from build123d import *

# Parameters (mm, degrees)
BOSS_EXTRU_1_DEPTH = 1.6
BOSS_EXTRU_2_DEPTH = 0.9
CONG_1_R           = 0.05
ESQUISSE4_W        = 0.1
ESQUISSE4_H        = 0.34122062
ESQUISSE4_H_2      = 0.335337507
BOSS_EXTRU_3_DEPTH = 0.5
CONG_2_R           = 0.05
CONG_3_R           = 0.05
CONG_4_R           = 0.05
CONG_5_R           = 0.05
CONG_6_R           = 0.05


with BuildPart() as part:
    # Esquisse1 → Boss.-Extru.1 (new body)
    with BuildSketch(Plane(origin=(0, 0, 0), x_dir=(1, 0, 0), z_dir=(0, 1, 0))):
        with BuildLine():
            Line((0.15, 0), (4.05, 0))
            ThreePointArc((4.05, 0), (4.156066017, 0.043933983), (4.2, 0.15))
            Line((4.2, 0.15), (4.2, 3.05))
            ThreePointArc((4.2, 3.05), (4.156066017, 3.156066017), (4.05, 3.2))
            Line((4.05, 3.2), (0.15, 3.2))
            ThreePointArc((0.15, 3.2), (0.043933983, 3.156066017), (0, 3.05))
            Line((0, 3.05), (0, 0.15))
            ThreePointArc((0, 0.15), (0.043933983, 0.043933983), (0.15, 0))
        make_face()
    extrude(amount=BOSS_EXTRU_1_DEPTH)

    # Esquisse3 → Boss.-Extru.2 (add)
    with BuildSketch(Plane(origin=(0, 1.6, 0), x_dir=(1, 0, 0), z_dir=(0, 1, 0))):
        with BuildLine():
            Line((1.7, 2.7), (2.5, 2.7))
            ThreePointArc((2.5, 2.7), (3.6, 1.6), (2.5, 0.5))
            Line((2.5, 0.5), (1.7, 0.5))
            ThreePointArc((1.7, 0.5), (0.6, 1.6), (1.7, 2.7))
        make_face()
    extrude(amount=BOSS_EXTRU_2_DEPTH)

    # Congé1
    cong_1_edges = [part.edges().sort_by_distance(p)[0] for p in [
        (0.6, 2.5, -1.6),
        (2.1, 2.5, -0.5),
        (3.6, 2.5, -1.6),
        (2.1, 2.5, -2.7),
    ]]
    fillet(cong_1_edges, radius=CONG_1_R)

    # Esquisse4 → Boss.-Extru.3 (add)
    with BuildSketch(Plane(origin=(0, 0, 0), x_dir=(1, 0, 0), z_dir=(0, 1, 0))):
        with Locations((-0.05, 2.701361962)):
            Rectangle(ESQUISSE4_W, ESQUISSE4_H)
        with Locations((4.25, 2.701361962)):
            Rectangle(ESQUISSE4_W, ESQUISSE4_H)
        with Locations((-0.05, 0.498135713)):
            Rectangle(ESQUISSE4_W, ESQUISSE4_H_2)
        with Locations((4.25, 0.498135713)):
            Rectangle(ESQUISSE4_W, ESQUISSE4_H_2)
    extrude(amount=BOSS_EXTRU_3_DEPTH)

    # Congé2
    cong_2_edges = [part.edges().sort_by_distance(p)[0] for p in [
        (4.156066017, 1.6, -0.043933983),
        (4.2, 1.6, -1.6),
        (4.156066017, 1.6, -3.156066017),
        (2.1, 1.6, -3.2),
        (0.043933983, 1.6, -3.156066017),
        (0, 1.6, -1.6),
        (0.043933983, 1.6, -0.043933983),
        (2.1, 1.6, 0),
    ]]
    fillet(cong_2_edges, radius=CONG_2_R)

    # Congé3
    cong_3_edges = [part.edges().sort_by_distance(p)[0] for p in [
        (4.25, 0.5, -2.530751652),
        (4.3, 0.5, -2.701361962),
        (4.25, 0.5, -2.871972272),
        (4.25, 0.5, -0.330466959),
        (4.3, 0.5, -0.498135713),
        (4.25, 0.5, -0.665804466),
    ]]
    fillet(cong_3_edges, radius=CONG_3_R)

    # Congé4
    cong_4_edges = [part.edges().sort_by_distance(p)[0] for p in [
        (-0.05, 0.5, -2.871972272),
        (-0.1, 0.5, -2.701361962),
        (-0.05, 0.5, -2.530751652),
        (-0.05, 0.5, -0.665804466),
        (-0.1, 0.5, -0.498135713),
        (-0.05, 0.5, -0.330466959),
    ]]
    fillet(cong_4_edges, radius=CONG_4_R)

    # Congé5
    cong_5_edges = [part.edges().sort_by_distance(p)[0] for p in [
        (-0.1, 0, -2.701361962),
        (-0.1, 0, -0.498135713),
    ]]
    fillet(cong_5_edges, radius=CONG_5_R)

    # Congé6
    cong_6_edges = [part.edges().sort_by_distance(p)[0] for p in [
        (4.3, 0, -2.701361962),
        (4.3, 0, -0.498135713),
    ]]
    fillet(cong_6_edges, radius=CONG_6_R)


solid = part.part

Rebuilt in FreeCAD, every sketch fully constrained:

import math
import FreeCAD as App
import Part
import Sketcher
from FreeCAD import Vector


def edges_at(feature, points):
    """Names of the edges that pass closest to the given points."""
    edges = feature.Shape.Edges
    near = lambda p: min(range(len(edges)), key=lambda i: edges[i].distToShape(Part.Vertex(*p))[0])
    return sorted({f"Edge{near(p) + 1}" for p in points})


def add_polygon(sketch, points):
    """Adds a closed chain of lines whose ends are joined by coincident constraints."""
    first, n = sketch.GeometryCount, len(points)
    for a, b in zip(points, points[1:] + points[:1]):
        sketch.addGeometry(Part.LineSegment(App.Vector(*a, 0), App.Vector(*b, 0)), False)
    for i in range(n):
        sketch.addConstraint(Sketcher.Constraint("Coincident", first + i, 2, first + (i + 1) % n, 1))

doc = App.newDocument("Part")
body = doc.addObject("PartDesign::Body", "Body")

sketch1 = body.newObject("Sketcher::SketchObject", "Sketch")
sketch1.AttachmentSupport = (doc.getObject("XZ_Plane"), [""])
sketch1.MapMode = "FlatFace"
sketch1.addGeometry(Part.LineSegment(Vector(0.15, 0, 0), Vector(4.05, 0, 0)), False)
sketch1.addGeometry(Part.ArcOfCircle(Part.Circle(Vector(4.05, -0.15, 0), Vector(0, 0, 1), 0.15), math.radians(0), math.radians(90)), False)
sketch1.addGeometry(Part.LineSegment(Vector(4.2, -0.15, 0), Vector(4.2, -3.05, 0)), False)
sketch1.addGeometry(Part.ArcOfCircle(Part.Circle(Vector(4.05, -3.05, 0), Vector(0, 0, 1), 0.15), math.radians(-90), math.radians(0)), False)
sketch1.addGeometry(Part.LineSegment(Vector(4.05, -3.2, 0), Vector(0.15, -3.2, 0)), False)
sketch1.addGeometry(Part.ArcOfCircle(Part.Circle(Vector(0.15, -3.05, 0), Vector(0, 0, 1), 0.15), math.radians(-180), math.radians(-90)), False)
sketch1.addGeometry(Part.LineSegment(Vector(0, -3.05, 0), Vector(0, -0.15, 0)), False)
sketch1.addGeometry(Part.ArcOfCircle(Part.Circle(Vector(0.15, -0.15, 0), Vector(0, 0, 1), 0.15), math.radians(90), math.radians(180)), False)
sketch1.addConstraint(Sketcher.Constraint("Tangent", 0, 2, 1, 2))
sketch1.addConstraint(Sketcher.Constraint("Tangent", 1, 1, 2, 1))
sketch1.addConstraint(Sketcher.Constraint("Tangent", 2, 2, 3, 2))
sketch1.addConstraint(Sketcher.Constraint("Tangent", 3, 1, 4, 1))
sketch1.addConstraint(Sketcher.Constraint("Tangent", 4, 2, 5, 2))
sketch1.addConstraint(Sketcher.Constraint("Tangent", 5, 1, 6, 1))
sketch1.addConstraint(Sketcher.Constraint("Tangent", 6, 2, 7, 2))
sketch1.addConstraint(Sketcher.Constraint("Tangent", 7, 1, 0, 1))
sketch1.addConstraint(Sketcher.Constraint("Horizontal", 0))
sketch1.addConstraint(Sketcher.Constraint("Vertical", 2))
sketch1.addConstraint(Sketcher.Constraint("Horizontal", 4))
sketch1.addConstraint(Sketcher.Constraint("Vertical", 6))
sketch1.addConstraint(Sketcher.Constraint("Equal", 1, 3))
sketch1.addConstraint(Sketcher.Constraint("Equal", 3, 5))
sketch1.addConstraint(Sketcher.Constraint("Equal", 5, 7))
sketch1.addConstraint(Sketcher.Constraint("PointOnObject", 0, 2, -1))
sketch1.addConstraint(Sketcher.Constraint("PointOnObject", 5, 1, -2))
sketch1.addConstraint(Sketcher.Constraint("Radius", 1, 0.15))
sketch1.addConstraint(Sketcher.Constraint("DistanceX", 0, 1, 0, 2, 3.9))
sketch1.addConstraint(Sketcher.Constraint("DistanceY", 2, 2, 2, 1, 2.9))
pad1 = body.newObject("PartDesign::Pad", "Pad")
pad1.Profile = sketch1
pad1.Length = 1.6
pad1.Reversed = True

sketch2 = body.newObject("Sketcher::SketchObject", "Sketch001")
sketch2.AttachmentSupport = (doc.getObject("XZ_Plane"), [""])
sketch2.MapMode = "FlatFace"
sketch2.AttachmentOffset = App.Placement(Vector(0, 0, -1.6), App.Rotation())
sketch2.addGeometry(Part.LineSegment(Vector(2.5, -2.7, 0), Vector(1.7, -2.7, 0)), False)
sketch2.addGeometry(Part.ArcOfCircle(Part.Circle(Vector(1.7, -1.6, 0), Vector(0, 0, 1), 1.1), math.radians(90), math.radians(270)), False)
sketch2.addGeometry(Part.LineSegment(Vector(1.7, -0.5, 0), Vector(2.5, -0.5, 0)), False)
sketch2.addGeometry(Part.ArcOfCircle(Part.Circle(Vector(2.5, -1.6, 0), Vector(0, 0, 1), 1.1), math.radians(-90), math.radians(90)), False)
sketch2.addConstraint(Sketcher.Constraint("Tangent", 0, 2, 1, 2))
sketch2.addConstraint(Sketcher.Constraint("Tangent", 1, 1, 2, 1))
sketch2.addConstraint(Sketcher.Constraint("Tangent", 2, 2, 3, 2))
sketch2.addConstraint(Sketcher.Constraint("Tangent", 3, 1, 0, 1))
sketch2.addConstraint(Sketcher.Constraint("Horizontal", 0))
sketch2.addConstraint(Sketcher.Constraint("Horizontal", 2))
sketch2.addConstraint(Sketcher.Constraint("Radius", 1, 1.1))
sketch2.addConstraint(Sketcher.Constraint("DistanceX", 0, 2, 0, 1, 0.8))
sketch2.addConstraint(Sketcher.Constraint("DistanceX", -1, 1, 1, 3, 1.7))
sketch2.addConstraint(Sketcher.Constraint("DistanceY", 1, 3, -1, 1, 1.6))
pad2 = body.newObject("PartDesign::Pad", "Pad001")
pad2.Profile = sketch2
pad2.Length = 0.9
pad2.Reversed = True
doc.recompute()

fillet = body.newObject("PartDesign::Fillet", "Fillet")
fillet.Base = (pad2, edges_at(pad2, [
    (0.6, 2.5, -1.6),
    (2.1, 2.5, -0.5),
    (3.6, 2.5, -1.6),
    (2.1, 2.5, -2.7),
]))
fillet.Radius = 0.05

sketch3 = body.newObject("Sketcher::SketchObject", "Sketch002")
sketch3.AttachmentSupport = (doc.getObject("XZ_Plane"), [""])
sketch3.MapMode = "FlatFace"
add_polygon(sketch3, [(-0.1, -2.87), (-0.1, -2.53), (0, -2.53), (0, -2.87)])
add_polygon(sketch3, [(4.2, -2.87), (4.2, -2.53), (4.3, -2.53), (4.3, -2.87)])
add_polygon(sketch3, [(-0.1, -0.67), (-0.1, -0.33), (0, -0.33), (0, -0.67)])
add_polygon(sketch3, [(4.2, -0.67), (4.2, -0.33), (4.3, -0.33), (4.3, -0.67)])
sketch3.addConstraint(Sketcher.Constraint("Vertical", 0))
sketch3.addConstraint(Sketcher.Constraint("Horizontal", 1))
sketch3.addConstraint(Sketcher.Constraint("Vertical", 2))
sketch3.addConstraint(Sketcher.Constraint("Horizontal", 3))
sketch3.addConstraint(Sketcher.Constraint("Vertical", 4))
sketch3.addConstraint(Sketcher.Constraint("Horizontal", 5))
sketch3.addConstraint(Sketcher.Constraint("Vertical", 6))
sketch3.addConstraint(Sketcher.Constraint("Horizontal", 7))
sketch3.addConstraint(Sketcher.Constraint("Vertical", 8))
sketch3.addConstraint(Sketcher.Constraint("Horizontal", 9))
sketch3.addConstraint(Sketcher.Constraint("Vertical", 10))
sketch3.addConstraint(Sketcher.Constraint("Horizontal", 11))
sketch3.addConstraint(Sketcher.Constraint("Vertical", 12))
sketch3.addConstraint(Sketcher.Constraint("Horizontal", 13))
sketch3.addConstraint(Sketcher.Constraint("Vertical", 14))
sketch3.addConstraint(Sketcher.Constraint("Horizontal", 15))
sketch3.addConstraint(Sketcher.Constraint("PointOnObject", 1, 2, -2))
sketch3.addConstraint(Sketcher.Constraint("PointOnObject", 9, 2, -2))
sketch3.addConstraint(Sketcher.Constraint("Horizontal", 1, 2, 4, 2))
sketch3.addConstraint(Sketcher.Constraint("Horizontal", 3, 2, 6, 2))
sketch3.addConstraint(Sketcher.Constraint("Horizontal", 9, 2, 12, 2))
sketch3.addConstraint(Sketcher.Constraint("Horizontal", 11, 2, 14, 2))
sketch3.addConstraint(Sketcher.Constraint("Vertical", 3, 2, 8, 2))
sketch3.addConstraint(Sketcher.Constraint("Vertical", 7, 2, 12, 2))
sketch3.addConstraint(Sketcher.Constraint("Vertical", 6, 2, 13, 2))
sketch3.addConstraint(Sketcher.Constraint("Equal", 3, 5))
sketch3.addConstraint(Sketcher.Constraint("DistanceX", 1, 1, 1, 2, 0.1))
sketch3.addConstraint(Sketcher.Constraint("DistanceX", -1, 1, 4, 2, 4.2))
sketch3.addConstraint(Sketcher.Constraint("DistanceY", 0, 1, 0, 2, 0.341221))
sketch3.addConstraint(Sketcher.Constraint("DistanceY", 8, 1, 8, 2, 0.335338))
sketch3.addConstraint(Sketcher.Constraint("DistanceY", 0, 2, -1, 1, 2.530752))
sketch3.addConstraint(Sketcher.Constraint("DistanceY", 8, 2, -1, 1, 0.330467))
pad3 = body.newObject("PartDesign::Pad", "Pad002")
pad3.Profile = sketch3
pad3.Length = 0.5
pad3.Reversed = True
doc.recompute()

fillet2 = body.newObject("PartDesign::Fillet", "Fillet001")
fillet2.Base = (pad3, edges_at(pad3, [
    (4.156, 1.6, -0.044),
    (4.2, 1.6, -1.6),
    (4.156, 1.6, -3.156),
    (2.1, 1.6, -3.2),
    (0.044, 1.6, -3.156),
    (0, 1.6, -1.6),
    (0.044, 1.6, -0.044),
    (2.1, 1.6, 0),
]))
fillet2.Radius = 0.05
doc.recompute()

fillet3 = body.newObject("PartDesign::Fillet", "Fillet002")
fillet3.Base = (fillet2, edges_at(fillet2, [
    (4.25, 0.5, -2.531),
    (4.3, 0.5, -2.701),
    (4.25, 0.5, -2.872),
    (4.25, 0.5, -0.33),
    (4.3, 0.5, -0.498),
    (4.25, 0.5, -0.666),
]))
fillet3.Radius = 0.05
doc.recompute()

fillet4 = body.newObject("PartDesign::Fillet", "Fillet003")
fillet4.Base = (fillet3, edges_at(fillet3, [
    (-0.05, 0.5, -2.872),
    (-0.1, 0.5, -2.701),
    (-0.05, 0.5, -2.531),
    (-0.05, 0.5, -0.666),
    (-0.1, 0.5, -0.498),
    (-0.05, 0.5, -0.33),
]))
fillet4.Radius = 0.05
doc.recompute()

fillet5 = body.newObject("PartDesign::Fillet", "Fillet004")
fillet5.Base = (fillet4, edges_at(fillet4, [(-0.1, 0, -2.701), (-0.1, 0, -0.498)]))
fillet5.Radius = 0.05
doc.recompute()

fillet6 = body.newObject("PartDesign::Fillet", "Fillet005")
fillet6.Base = (fillet5, edges_at(fillet5, [(4.3, 0, -2.701), (4.3, 0, -0.498)]))
fillet6.Radius = 0.05

doc.recompute()
